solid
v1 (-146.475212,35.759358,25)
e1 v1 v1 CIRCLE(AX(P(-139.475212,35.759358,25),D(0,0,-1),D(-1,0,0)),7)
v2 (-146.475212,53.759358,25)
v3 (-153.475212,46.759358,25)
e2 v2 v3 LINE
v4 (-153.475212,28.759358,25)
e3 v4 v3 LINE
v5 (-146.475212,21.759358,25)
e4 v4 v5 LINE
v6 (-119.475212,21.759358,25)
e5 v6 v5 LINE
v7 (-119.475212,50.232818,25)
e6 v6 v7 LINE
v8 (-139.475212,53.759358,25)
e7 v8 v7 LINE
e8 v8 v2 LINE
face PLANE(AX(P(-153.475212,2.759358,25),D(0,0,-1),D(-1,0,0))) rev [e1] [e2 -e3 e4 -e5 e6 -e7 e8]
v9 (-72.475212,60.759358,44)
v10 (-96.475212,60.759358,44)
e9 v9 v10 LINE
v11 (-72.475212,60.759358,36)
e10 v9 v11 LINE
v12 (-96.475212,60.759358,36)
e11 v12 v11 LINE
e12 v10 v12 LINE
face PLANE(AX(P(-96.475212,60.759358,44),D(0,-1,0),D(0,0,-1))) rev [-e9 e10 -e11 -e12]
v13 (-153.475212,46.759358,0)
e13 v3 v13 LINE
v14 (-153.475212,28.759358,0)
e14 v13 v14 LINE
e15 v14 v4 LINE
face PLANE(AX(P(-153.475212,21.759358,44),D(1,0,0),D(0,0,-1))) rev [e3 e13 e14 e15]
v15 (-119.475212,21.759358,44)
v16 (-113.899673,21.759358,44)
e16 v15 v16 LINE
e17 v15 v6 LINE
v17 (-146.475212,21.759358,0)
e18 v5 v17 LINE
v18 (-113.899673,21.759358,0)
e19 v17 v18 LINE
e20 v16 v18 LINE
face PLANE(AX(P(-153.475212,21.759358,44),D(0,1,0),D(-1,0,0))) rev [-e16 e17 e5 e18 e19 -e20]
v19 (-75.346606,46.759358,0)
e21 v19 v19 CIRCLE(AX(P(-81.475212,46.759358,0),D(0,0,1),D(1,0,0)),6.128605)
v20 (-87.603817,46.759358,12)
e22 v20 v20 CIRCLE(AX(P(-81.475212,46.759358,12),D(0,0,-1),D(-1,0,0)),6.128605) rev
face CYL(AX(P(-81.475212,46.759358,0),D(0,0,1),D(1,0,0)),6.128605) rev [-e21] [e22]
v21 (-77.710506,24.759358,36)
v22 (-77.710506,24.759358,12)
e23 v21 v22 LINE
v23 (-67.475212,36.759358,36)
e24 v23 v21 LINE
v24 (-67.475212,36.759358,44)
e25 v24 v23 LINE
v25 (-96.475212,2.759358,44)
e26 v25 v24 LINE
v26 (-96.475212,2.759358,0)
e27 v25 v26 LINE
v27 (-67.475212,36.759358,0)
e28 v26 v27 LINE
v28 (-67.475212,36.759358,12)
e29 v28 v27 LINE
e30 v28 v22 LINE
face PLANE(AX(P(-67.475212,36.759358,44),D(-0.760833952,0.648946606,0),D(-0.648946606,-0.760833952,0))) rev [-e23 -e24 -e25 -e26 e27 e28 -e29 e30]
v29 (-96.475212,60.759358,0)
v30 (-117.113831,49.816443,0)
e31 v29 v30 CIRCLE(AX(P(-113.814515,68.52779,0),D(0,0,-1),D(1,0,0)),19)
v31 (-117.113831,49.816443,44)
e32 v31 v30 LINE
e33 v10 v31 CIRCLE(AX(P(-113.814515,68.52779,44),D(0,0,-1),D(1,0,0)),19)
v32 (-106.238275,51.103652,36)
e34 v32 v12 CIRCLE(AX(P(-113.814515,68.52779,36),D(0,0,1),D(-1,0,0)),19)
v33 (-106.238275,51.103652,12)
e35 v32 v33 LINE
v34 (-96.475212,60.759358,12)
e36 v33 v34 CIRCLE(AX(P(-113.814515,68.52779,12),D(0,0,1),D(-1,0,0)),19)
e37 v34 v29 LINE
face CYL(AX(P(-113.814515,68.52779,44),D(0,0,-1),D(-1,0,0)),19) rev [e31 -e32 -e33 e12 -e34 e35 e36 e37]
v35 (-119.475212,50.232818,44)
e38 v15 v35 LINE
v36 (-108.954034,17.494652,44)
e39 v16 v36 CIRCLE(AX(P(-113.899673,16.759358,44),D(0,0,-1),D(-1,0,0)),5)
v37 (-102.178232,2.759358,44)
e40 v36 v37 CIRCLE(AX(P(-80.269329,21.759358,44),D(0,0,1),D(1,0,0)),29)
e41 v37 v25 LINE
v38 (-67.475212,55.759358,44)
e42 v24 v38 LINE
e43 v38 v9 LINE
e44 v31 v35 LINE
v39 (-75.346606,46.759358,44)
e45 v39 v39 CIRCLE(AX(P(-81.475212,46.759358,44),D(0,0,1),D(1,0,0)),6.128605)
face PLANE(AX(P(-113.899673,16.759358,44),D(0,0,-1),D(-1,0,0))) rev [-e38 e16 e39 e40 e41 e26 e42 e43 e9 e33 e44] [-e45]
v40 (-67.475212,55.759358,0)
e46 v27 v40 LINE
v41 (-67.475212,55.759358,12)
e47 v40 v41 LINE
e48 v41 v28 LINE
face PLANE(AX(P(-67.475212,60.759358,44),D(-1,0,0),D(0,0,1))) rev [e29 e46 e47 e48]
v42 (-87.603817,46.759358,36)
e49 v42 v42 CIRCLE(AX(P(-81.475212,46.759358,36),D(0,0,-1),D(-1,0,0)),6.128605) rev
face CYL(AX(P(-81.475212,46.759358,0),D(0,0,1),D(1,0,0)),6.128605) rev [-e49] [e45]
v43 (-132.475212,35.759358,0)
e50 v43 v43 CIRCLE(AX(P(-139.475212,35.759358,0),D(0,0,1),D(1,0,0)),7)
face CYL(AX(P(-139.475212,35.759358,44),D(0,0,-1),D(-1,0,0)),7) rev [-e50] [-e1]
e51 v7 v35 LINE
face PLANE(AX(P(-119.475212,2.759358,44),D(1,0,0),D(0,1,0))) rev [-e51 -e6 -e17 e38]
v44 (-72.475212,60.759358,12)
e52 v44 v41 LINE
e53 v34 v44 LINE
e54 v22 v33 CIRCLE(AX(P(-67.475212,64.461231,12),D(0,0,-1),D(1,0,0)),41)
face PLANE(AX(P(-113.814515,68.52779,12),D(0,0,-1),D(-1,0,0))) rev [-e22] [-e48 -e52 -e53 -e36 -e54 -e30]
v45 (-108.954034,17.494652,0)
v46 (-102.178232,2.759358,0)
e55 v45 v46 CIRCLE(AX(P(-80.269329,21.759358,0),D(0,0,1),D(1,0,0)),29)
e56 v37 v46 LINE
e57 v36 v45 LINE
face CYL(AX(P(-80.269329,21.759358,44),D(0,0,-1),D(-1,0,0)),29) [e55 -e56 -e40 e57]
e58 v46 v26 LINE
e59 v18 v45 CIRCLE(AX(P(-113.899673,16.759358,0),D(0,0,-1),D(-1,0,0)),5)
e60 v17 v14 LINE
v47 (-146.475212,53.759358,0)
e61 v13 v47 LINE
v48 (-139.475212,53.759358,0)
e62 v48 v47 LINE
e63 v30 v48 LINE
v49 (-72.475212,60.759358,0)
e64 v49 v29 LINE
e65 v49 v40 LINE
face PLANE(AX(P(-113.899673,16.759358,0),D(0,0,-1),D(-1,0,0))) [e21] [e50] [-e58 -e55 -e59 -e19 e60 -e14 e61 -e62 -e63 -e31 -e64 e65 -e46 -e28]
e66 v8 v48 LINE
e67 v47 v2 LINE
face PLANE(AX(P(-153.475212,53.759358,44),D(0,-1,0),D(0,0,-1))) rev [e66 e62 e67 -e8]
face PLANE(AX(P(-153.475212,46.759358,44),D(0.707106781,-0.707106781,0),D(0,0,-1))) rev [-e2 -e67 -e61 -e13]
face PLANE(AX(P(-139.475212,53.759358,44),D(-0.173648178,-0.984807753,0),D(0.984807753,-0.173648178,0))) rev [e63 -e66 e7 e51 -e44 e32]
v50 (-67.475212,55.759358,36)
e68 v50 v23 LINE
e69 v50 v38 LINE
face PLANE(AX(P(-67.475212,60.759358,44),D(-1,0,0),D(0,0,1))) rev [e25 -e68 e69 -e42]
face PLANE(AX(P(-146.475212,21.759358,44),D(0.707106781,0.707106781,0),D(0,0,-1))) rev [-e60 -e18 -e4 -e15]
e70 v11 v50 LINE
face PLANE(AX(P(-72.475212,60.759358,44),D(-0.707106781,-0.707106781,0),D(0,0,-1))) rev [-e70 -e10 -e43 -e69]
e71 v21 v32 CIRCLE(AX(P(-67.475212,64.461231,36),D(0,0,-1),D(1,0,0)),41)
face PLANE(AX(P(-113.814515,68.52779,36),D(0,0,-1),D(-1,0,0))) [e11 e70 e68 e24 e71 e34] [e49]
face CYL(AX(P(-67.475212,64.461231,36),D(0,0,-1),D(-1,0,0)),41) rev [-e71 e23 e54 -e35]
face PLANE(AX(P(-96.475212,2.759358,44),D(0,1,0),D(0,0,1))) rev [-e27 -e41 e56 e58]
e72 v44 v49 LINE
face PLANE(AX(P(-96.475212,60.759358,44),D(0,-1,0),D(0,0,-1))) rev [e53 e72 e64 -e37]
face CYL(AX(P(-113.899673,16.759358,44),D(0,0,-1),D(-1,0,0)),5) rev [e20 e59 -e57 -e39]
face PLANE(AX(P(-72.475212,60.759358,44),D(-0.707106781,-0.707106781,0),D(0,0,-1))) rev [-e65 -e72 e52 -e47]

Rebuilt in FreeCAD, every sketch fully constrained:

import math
import FreeCAD as App
import Part
import Sketcher
Q = App.Units.Quantity


def edges_at(feature, points):
    """Names of the edges that pass closest to the given points."""
    edges = feature.Shape.Edges
    near = lambda p: min(range(len(edges)), key=lambda i: edges[i].distToShape(Part.Vertex(*p))[0])
    return sorted({f"Edge{near(p) + 1}" for p in points})


def add_polygon(sketch, points):
    """Adds a closed chain of lines whose ends are joined by coincident constraints."""
    first, n = sketch.GeometryCount, len(points)
    for a, b in zip(points, points[1:] + points[:1]):
        sketch.addGeometry(Part.LineSegment(App.Vector(*a, 0), App.Vector(*b, 0)), False)
    for i in range(n):
        sketch.addConstraint(Sketcher.Constraint("Coincident", first + i, 2, first + (i + 1) % n, 1))

doc = App.newDocument("Part")
params = doc.addObject("Spreadsheet::Sheet", "Params")
for row, (alias, value) in enumerate([
    ("sketch1_radius", "5 mm"),
    ("sketch1_radius2", "29 mm"),
    ("sketch1_radius3", "19 mm"),
    ("sketch1_width", "29 mm"),
    ("sketch1_width2", "14 mm"),
    ("pad1_length", "44 mm"),
    ("sketch2_diameter", "14 mm"),
    ("chamfer_size", "7 mm"),
    ("chamfer2_size", "7 mm"),
    ("chamfer3_size", "5 mm"),
    ("sketch4_width", "34 mm"),
    ("sketch4_height", "19 mm"),
    ("sketch5_radius", "41 mm"),
    ("sketch5_radius2", "19 mm"),
    ("sketch5_width", "24 mm"),
    ("sketch5_height", "19 mm"),
    ("pocket4_length", "24 mm"),
], start=1):
    params.set(f"A{row}", alias)
    params.set(f"B{row}", "=" + value)
    params.setAlias(f"B{row}", alias)

body = doc.addObject("PartDesign::Body", "Body")

# Sketch on XY plane
sketch1 = body.newObject("Sketcher::SketchObject", "Sketch")
sketch1.AttachmentSupport = (doc.getObject("XY_Plane"), [""])
sketch1.MapMode = "FlatFace"
sketch1.addGeometry([
    Part.LineSegment(App.Vector(-153, 54, 0), App.Vector(-153, 22, 0)),  # 0
    Part.LineSegment(App.Vector(-153, 22, 0), App.Vector(-114, 22, 0)),  # 1
    Part.ArcOfCircle(Part.Circle(App.Vector(-114, 17, 0), App.Vector(0, 0, 1), 5), math.radians(8), math.radians(90)),  # 2
    Part.ArcOfCircle(Part.Circle(App.Vector(-80, 22, 0), App.Vector(0, 0, 1), 29), math.radians(-172), math.radians(-139)),  # 3
    Part.LineSegment(App.Vector(-102, 3, 0), App.Vector(-96, 3, 0)),  # 4
    Part.LineSegment(App.Vector(-96, 3, 0), App.Vector(-67, 37, 0)),  # 5
    Part.LineSegment(App.Vector(-67, 37, 0), App.Vector(-67, 61, 0)),  # 6
    Part.LineSegment(App.Vector(-67, 61, 0), App.Vector(-96, 61, 0)),  # 7
    Part.ArcOfCircle(Part.Circle(App.Vector(-114, 69, 0), App.Vector(0, 0, 1), 19), math.radians(-100), math.radians(-24)),  # 8
    Part.LineSegment(App.Vector(-117, 50, 0), App.Vector(-139, 54, 0)),  # 9
    Part.LineSegment(App.Vector(-139, 54, 0), App.Vector(-153, 54, 0)),  # 10
], False)
sketch1.addConstraint([
    Sketcher.Constraint("Coincident", 0, 2, 1, 1),
    Sketcher.Constraint("Tangent", 1, 2, 2, 2),
    Sketcher.Constraint("Tangent", 2, 1, 3, 1),
    Sketcher.Constraint("Coincident", 3, 2, 4, 1),
    Sketcher.Constraint("Coincident", 4, 2, 5, 1),
    Sketcher.Constraint("Coincident", 5, 2, 6, 1),
    Sketcher.Constraint("Coincident", 6, 2, 7, 1),
    Sketcher.Constraint("Coincident", 7, 2, 8, 2),
    Sketcher.Constraint("Tangent", 8, 1, 9, 1),
    Sketcher.Constraint("Coincident", 9, 2, 10, 1),
    Sketcher.Constraint("Coincident", 10, 2, 0, 1),
    Sketcher.Constraint("Vertical", 0),
    Sketcher.Constraint("Horizontal", 1),
    Sketcher.Constraint("Horizontal", 4),
    Sketcher.Constraint("Vertical", 6),
    Sketcher.Constraint("Horizontal", 7),
    Sketcher.Constraint("Horizontal", 10),
    Sketcher.Constraint("Horizontal", 3, 3, 0, 2),
    Sketcher.Constraint("Vertical", 4, 2, 7, 2),
    Sketcher.Constraint("Radius", 2, 5.0),
    Sketcher.Constraint("Radius", 3, 29.0),
    Sketcher.Constraint("Radius", 8, 19.0),
    Sketcher.Constraint("DistanceX", 7, 2, 7, 1, 29.0),
    Sketcher.Constraint("DistanceX", 10, 2, 10, 1, 14.0),
    Sketcher.Constraint("DistanceY", 0, 2, 0, 1, 32.0),
    Sketcher.Constraint("DistanceY", 6, 1, 6, 2, 24.0),
    Sketcher.Constraint("Angle", 9, Q("170 deg")),
    Sketcher.Constraint("DistanceY", 3, 2, 2, 3, 14.0),
    Sketcher.Constraint("DistanceY", 3, 3, 5, 2, 15.0),
    Sketcher.Constraint("DistanceX", 9, 2, 7, 2, 43.0),
    Sketcher.Constraint("DistanceX", 1, 1, 1, 2, 39.575539),
    Sketcher.Constraint("DistanceX", 3, 3, -1, 1, 80.269329),
    Sketcher.Constraint("DistanceY", -1, 1, 8, 3, 68.52779),
])
sketch1.setExpression("Constraints[19]", "Params.sketch1_radius")
sketch1.setExpression("Constraints[20]", "Params.sketch1_radius2")
sketch1.setExpression("Constraints[21]", "Params.sketch1_radius3")
sketch1.setExpression("Constraints[22]", "Params.sketch1_width")
sketch1.setExpression("Constraints[23]", "Params.sketch1_width2")
pad1 = body.newObject("PartDesign::Pad", "Pad")
pad1.Profile = sketch1
pad1.setExpression("Length", "Params.pad1_length")

# Sketch on XY plane
sketch2 = body.newObject("Sketcher::SketchObject", "Sketch001")
sketch2.AttachmentSupport = (doc.getObject("XY_Plane"), [""])
sketch2.MapMode = "FlatFace"
sketch2.addGeometry(Part.Circle(App.Vector(-139, 36, 0), App.Vector(0, 0, 1), 7), False)
sketch2.addConstraint([
    Sketcher.Constraint("Diameter", 0, 14.0),
    Sketcher.Constraint("DistanceX", 0, 3, -1, 1, 139.475212),
    Sketcher.Constraint("DistanceY", -1, 1, 0, 3, 35.759358),
])
sketch2.setExpression("Constraints[0]", "Params.sketch2_diameter")
pocket1 = body.newObject("PartDesign::Pocket", "Pocket")
pocket1.Profile = sketch2
pocket1.Type = "ThroughAll"
pocket1.Reversed = True
doc.recompute()

chamfer = body.newObject("PartDesign::Chamfer", "Chamfer")
chamfer.Base = (pocket1, edges_at(pocket1, [(-153.475, 53.759, 22)]))
chamfer.setExpression("Size", "Params.chamfer_size")
doc.recompute()

chamfer2 = body.newObject("PartDesign::Chamfer", "Chamfer001")
chamfer2.Base = (chamfer, edges_at(chamfer, [(-153.475, 21.759, 22)]))
chamfer2.setExpression("Size", "Params.chamfer2_size")
doc.recompute()

chamfer3 = body.newObject("PartDesign::Chamfer", "Chamfer002")
chamfer3.Base = (chamfer2, edges_at(chamfer2, [(-67.475, 60.759, 22)]))
chamfer3.setExpression("Size", "Params.chamfer3_size")

# Sketch on XY plane
sketch3 = body.newObject("Sketcher::SketchObject", "Sketch002")
sketch3.AttachmentSupport = (doc.getObject("XY_Plane"), [""])
sketch3.MapMode = "FlatFace"
sketch3.AttachmentOffset = App.Placement(App.Vector(0, 0, 44), App.Rotation())
sketch3.addGeometry(Part.Circle(App.Vector(-81, 47, 0), App.Vector(0, 0, 1), 6), False)
sketch3.addConstraint([
    Sketcher.Constraint("Diameter", 0, 12.25721),
    Sketcher.Constraint("DistanceX", 0, 3, -1, 1, 81.475212),
    Sketcher.Constraint("DistanceY", -1, 1, 0, 3, 46.759358),
])
pocket2 = body.newObject("PartDesign::Pocket", "Pocket001")
pocket2.Profile = sketch3
pocket2.Type = "ThroughAll"

# Sketch on XZ plane
sketch4 = body.newObject("Sketcher::SketchObject", "Sketch003")
sketch4.AttachmentSupport = (doc.getObject("XZ_Plane"), [""])
sketch4.MapMode = "FlatFace"
sketch4.AttachmentOffset = App.Placement(App.Vector(0, 0, -53.759358), App.Rotation())
add_polygon(sketch4, [(-153, 25), (-153, 44), (-119, 44), (-119, 25)])  # lines 0-3
sketch4.addConstraint([
    Sketcher.Constraint("Vertical", 0),
    Sketcher.Constraint("Horizontal", 1),
    Sketcher.Constraint("Vertical", 2),
    Sketcher.Constraint("Horizontal", 3),
    Sketcher.Constraint("DistanceX", 1, 1, 1, 2, 34.0),
    Sketcher.Constraint("DistanceY", 0, 1, 0, 2, 19.0),
    Sketcher.Constraint("DistanceY", -1, 1, 0, 2, 44.0),
    Sketcher.Constraint("DistanceX", 0, 2, -1, 1, 153.475212),
])
sketch4.setExpression("Constraints[8]", "Params.sketch4_width")
sketch4.setExpression("Constraints[9]", "Params.sketch4_height")
pocket3 = body.newObject("PartDesign::Pocket", "Pocket002")
pocket3.Profile = sketch4
pocket3.Type = "ThroughAll"
pocket3.Reversed = True

# Sketch on XY plane
sketch5 = body.newObject("Sketcher::SketchObject", "Sketch004")
sketch5.AttachmentSupport = (doc.getObject("XY_Plane"), [""])
sketch5.MapMode = "FlatFace"
sketch5.AttachmentOffset = App.Placement(App.Vector(0, 0, 12), App.Rotation())
sketch5.addGeometry([
    Part.LineSegment(App.Vector(-67, 37, 0), App.Vector(-78, 25, 0)),  # 0
    Part.ArcOfCircle(Part.Circle(App.Vector(-67, 64, 0), App.Vector(0, 0, 1), 41), math.radians(-161), math.radians(-104)),  # 1
    Part.ArcOfCircle(Part.Circle(App.Vector(-114, 69, 0), App.Vector(0, 0, 1), 19), math.radians(-66), math.radians(-24)),  # 2
    Part.LineSegment(App.Vector(-96, 61, 0), App.Vector(-72, 61, 0)),  # 3
    Part.LineSegment(App.Vector(-72, 61, 0), App.Vector(-67, 56, 0)),  # 4
    Part.LineSegment(App.Vector(-67, 56, 0), App.Vector(-67, 37, 0)),  # 5
], False)
sketch5.addConstraint([
    Sketcher.Constraint("Coincident", 0, 2, 1, 2),
    Sketcher.Constraint("Coincident", 1, 1, 2, 1),
    Sketcher.Constraint("Coincident", 2, 2, 3, 1),
    Sketcher.Constraint("Coincident", 3, 2, 4, 1),
    Sketcher.Constraint("Coincident", 4, 2, 5, 1),
    Sketcher.Constraint("Coincident", 5, 2, 0, 1),
    Sketcher.Constraint("Horizontal", 3),
    Sketcher.Constraint("Vertical", 5),
    Sketcher.Constraint("Vertical", 1, 3, 4, 2),
    Sketcher.Constraint("Radius", 1, 41.0),
    Sketcher.Constraint("Radius", 2, 19.0),
    Sketcher.Constraint("DistanceX", 3, 1, 3, 2, 24.0),
    Sketcher.Constraint("DistanceY", 5, 2, 5, 1, 19.0),
    Sketcher.Constraint("Angle", 4, Q("-45 deg")),
    Sketcher.Constraint("DistanceX", 2, 2, 1, 3, 29.0),
    Sketcher.Constraint("DistanceY", 0, 2, 2, 2, 36.0),
    Sketcher.Constraint("DistanceX", 1, 3, -1, 1, 67.475212),
    Sketcher.Constraint("DistanceY", -1, 1, 1, 3, 64.461231),
    Sketcher.Constraint("DistanceY", -1, 1, 2, 3, 68.52779),
    Sketcher.Constraint("DistanceX", 2, 3, 0, 2, 36.10401),
])
sketch5.setExpression("Constraints[9]", "Params.sketch5_radius")
sketch5.setExpression("Constraints[10]", "Params.sketch5_radius2")
sketch5.setExpression("Constraints[11]", "Params.sketch5_width")
sketch5.setExpression("Constraints[12]", "Params.sketch5_height")
pocket4 = body.newObject("PartDesign::Pocket", "Pocket003")
pocket4.Profile = sketch5
pocket4.setExpression("Length", "Params.pocket4_length")
pocket4.Reversed = True

doc.recompute()
